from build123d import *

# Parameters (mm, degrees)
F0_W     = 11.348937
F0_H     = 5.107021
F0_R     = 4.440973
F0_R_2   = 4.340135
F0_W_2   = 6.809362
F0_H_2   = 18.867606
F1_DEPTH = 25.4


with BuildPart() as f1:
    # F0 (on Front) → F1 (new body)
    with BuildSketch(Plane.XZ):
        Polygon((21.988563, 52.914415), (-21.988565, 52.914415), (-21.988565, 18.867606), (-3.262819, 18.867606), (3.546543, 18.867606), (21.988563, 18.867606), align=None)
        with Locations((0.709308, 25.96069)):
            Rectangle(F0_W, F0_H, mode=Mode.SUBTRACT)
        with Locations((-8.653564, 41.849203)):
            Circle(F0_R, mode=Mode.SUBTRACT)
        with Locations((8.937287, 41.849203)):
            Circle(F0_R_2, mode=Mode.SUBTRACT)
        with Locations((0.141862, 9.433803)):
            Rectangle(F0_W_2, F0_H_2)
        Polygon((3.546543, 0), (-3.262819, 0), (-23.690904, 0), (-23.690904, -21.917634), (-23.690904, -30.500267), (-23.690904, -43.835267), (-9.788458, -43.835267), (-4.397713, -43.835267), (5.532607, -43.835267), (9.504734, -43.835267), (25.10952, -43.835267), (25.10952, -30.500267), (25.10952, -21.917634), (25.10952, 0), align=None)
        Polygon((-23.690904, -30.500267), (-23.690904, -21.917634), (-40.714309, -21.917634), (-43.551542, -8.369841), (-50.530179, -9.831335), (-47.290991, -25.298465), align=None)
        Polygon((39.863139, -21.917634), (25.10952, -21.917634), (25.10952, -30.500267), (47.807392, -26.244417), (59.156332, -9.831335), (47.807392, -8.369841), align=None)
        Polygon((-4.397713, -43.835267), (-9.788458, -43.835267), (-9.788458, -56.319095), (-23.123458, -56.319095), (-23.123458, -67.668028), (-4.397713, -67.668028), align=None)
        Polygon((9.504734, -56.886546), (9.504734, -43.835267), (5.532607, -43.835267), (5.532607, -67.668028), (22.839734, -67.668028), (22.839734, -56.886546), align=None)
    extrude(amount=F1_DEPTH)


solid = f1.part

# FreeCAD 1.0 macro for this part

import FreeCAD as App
import Part
import Sketcher

V = App.Vector
Q = App.Units.Quantity

doc = App.newDocument("Part")
body = doc.addObject("PartDesign::Body", "Body")

# Sketch on XZ plane
sketch1 = body.newObject("Sketcher::SketchObject", "Sketch")
sketch1.AttachmentSupport = (doc.getObject("XZ_Plane"), [""])
sketch1.MapMode = "FlatFace"
sketch1.addGeometry(Part.LineSegment(V(22, 52.9, 0), V(-22, 52.9, 0)), False)
sketch1.addGeometry(Part.LineSegment(V(-22, 52.9, 0), V(-22, 18.9, 0)), False)
sketch1.addGeometry(Part.LineSegment(V(-22, 18.9, 0), V(-3.3, 18.9, 0)), False)
sketch1.addGeometry(Part.LineSegment(V(-3.3, 18.9, 0), V(-3.3, 0, 0)), False)
sketch1.addGeometry(Part.LineSegment(V(-3.3, 0, 0), V(-23.7, 0, 0)), False)
sketch1.addGeometry(Part.LineSegment(V(-23.7, 0, 0), V(-23.7, -21.9, 0)), False)
sketch1.addGeometry(Part.LineSegment(V(-23.7, -21.9, 0), V(-40.7, -21.9, 0)), False)
sketch1.addGeometry(Part.LineSegment(V(-40.7, -21.9, 0), V(-43.6, -8.4, 0)), False)
sketch1.addGeometry(Part.LineSegment(V(-43.6, -8.4, 0), V(-50.5, -9.8, 0)), False)
sketch1.addGeometry(Part.LineSegment(V(-50.5, -9.8, 0), V(-47.3, -25.3, 0)), False)
sketch1.addGeometry(Part.LineSegment(V(-47.3, -25.3, 0), V(-23.7, -30.5, 0)), False)
sketch1.addGeometry(Part.LineSegment(V(-23.7, -30.5, 0), V(-23.7, -43.8, 0)), False)
sketch1.addGeometry(Part.LineSegment(V(-23.7, -43.8, 0), V(-9.8, -43.8, 0)), False)
sketch1.addGeometry(Part.LineSegment(V(-9.8, -43.8, 0), V(-9.8, -56.3, 0)), False)
sketch1.addGeometry(Part.LineSegment(V(-9.8, -56.3, 0), V(-23.1, -56.3, 0)), False)
sketch1.addGeometry(Part.LineSegment(V(-23.1, -56.3, 0), V(-23.1, -67.7, 0)), False)
sketch1.addGeometry(Part.LineSegment(V(-23.1, -67.7, 0), V(-4.4, -67.7, 0)), False)
sketch1.addGeometry(Part.LineSegment(V(-4.4, -67.7, 0), V(-4.4, -43.8, 0)), False)
sketch1.addGeometry(Part.LineSegment(V(-4.4, -43.8, 0), V(5.5, -43.8, 0)), False)
sketch1.addGeometry(Part.LineSegment(V(5.5, -43.8, 0), V(5.5, -67.7, 0)), False)
sketch1.addGeometry(Part.LineSegment(V(5.5, -67.7, 0), V(22.8, -67.7, 0)), False)
sketch1.addGeometry(Part.LineSegment(V(22.8, -67.7, 0), V(22.8, -56.9, 0)), False)
sketch1.addGeometry(Part.LineSegment(V(22.8, -56.9, 0), V(9.5, -56.9, 0)), False)
sketch1.addGeometry(Part.LineSegment(V(9.5, -56.9, 0), V(9.5, -43.8, 0)), False)
sketch1.addGeometry(Part.LineSegment(V(9.5, -43.8, 0), V(25.1, -43.8, 0)), False)
sketch1.addGeometry(Part.LineSegment(V(25.1, -43.8, 0), V(25.1, -30.5, 0)), False)
sketch1.addGeometry(Part.LineSegment(V(25.1, -30.5, 0), V(47.8, -26.2, 0)), False)
sketch1.addGeometry(Part.LineSegment(V(47.8, -26.2, 0), V(59.2, -9.8, 0)), False)
sketch1.addGeometry(Part.LineSegment(V(59.2, -9.8, 0), V(47.8, -8.4, 0)), False)
sketch1.addGeometry(Part.LineSegment(V(47.8, -8.4, 0), V(39.9, -21.9, 0)), False)
sketch1.addGeometry(Part.LineSegment(V(39.9, -21.9, 0), V(25.1, -21.9, 0)), False)
sketch1.addGeometry(Part.LineSegment(V(25.1, -21.9, 0), V(25.1, 0, 0)), False)
sketch1.addGeometry(Part.LineSegment(V(25.1, 0, 0), V(3.5, 0, 0)), False)
sketch1.addGeometry(Part.LineSegment(V(3.5, 0, 0), V(3.5, 18.9, 0)), False)
sketch1.addGeometry(Part.LineSegment(V(3.5, 18.9, 0), V(22, 18.9, 0)), False)
sketch1.addGeometry(Part.LineSegment(V(22, 18.9, 0), V(22, 52.9, 0)), False)
sketch1.addGeometry(Part.LineSegment(V(6.4, 23.4, 0), V(-5, 23.4, 0)), False)
sketch1.addGeometry(Part.LineSegment(V(-5, 23.4, 0), V(-5, 28.5, 0)), False)
sketch1.addGeometry(Part.LineSegment(V(-5, 28.5, 0), V(6.4, 28.5, 0)), False)
sketch1.addGeometry(Part.LineSegment(V(6.4, 28.5, 0), V(6.4, 23.4, 0)), False)
sketch1.addGeometry(Part.Circle(V(-8.7, 41.8, 0), V(0, 0, 1), 4.4), False)
sketch1.addGeometry(Part.Circle(V(8.9, 41.8, 0), V(0, 0, 1), 4.3), False)
sketch1.addConstraint(Sketcher.Constraint("Coincident", 0, 2, 1, 1))
sketch1.addConstraint(Sketcher.Constraint("Coincident", 1, 2, 2, 1))
sketch1.addConstraint(Sketcher.Constraint("Coincident", 2, 2, 3, 1))
sketch1.addConstraint(Sketcher.Constraint("Coincident", 3, 2, 4, 1))
sketch1.addConstraint(Sketcher.Constraint("Coincident", 4, 2, 5, 1))
sketch1.addConstraint(Sketcher.Constraint("Coincident", 5, 2, 6, 1))
sketch1.addConstraint(Sketcher.Constraint("Coincident", 6, 2, 7, 1))
sketch1.addConstraint(Sketcher.Constraint("Coincident", 7, 2, 8, 1))
sketch1.addConstraint(Sketcher.Constraint("Coincident", 8, 2, 9, 1))
sketch1.addConstraint(Sketcher.Constraint("Coincident", 9, 2, 10, 1))
sketch1.addConstraint(Sketcher.Constraint("Coincident", 10, 2, 11, 1))
sketch1.addConstraint(Sketcher.Constraint("Coincident", 11, 2, 12, 1))
sketch1.addConstraint(Sketcher.Constraint("Coincident", 12, 2, 13, 1))
sketch1.addConstraint(Sketcher.Constraint("Coincident", 13, 2, 14, 1))
sketch1.addConstraint(Sketcher.Constraint("Coincident", 14, 2, 15, 1))
sketch1.addConstraint(Sketcher.Constraint("Coincident", 15, 2, 16, 1))
sketch1.addConstraint(Sketcher.Constraint("Coincident", 16, 2, 17, 1))
sketch1.addConstraint(Sketcher.Constraint("Coincident", 17, 2, 18, 1))
sketch1.addConstraint(Sketcher.Constraint("Coincident", 18, 2, 19, 1))
sketch1.addConstraint(Sketcher.Constraint("Coincident", 19, 2, 20, 1))
sketch1.addConstraint(Sketcher.Constraint("Coincident", 20, 2, 21, 1))
sketch1.addConstraint(Sketcher.Constraint("Coincident", 21, 2, 22, 1))
sketch1.addConstraint(Sketcher.Constraint("Coincident", 22, 2, 23, 1))
sketch1.addConstraint(Sketcher.Constraint("Coincident", 23, 2, 24, 1))
sketch1.addConstraint(Sketcher.Constraint("Coincident", 24, 2, 25, 1))
sketch1.addConstraint(Sketcher.Constraint("Coincident", 25, 2, 26, 1))
sketch1.addConstraint(Sketcher.Constraint("Coincident", 26, 2, 27, 1))
sketch1.addConstraint(Sketcher.Constraint("Coincident", 27, 2, 28, 1))
sketch1.addConstraint(Sketcher.Constraint("Coincident", 28, 2, 29, 1))
sketch1.addConstraint(Sketcher.Constraint("Coincident", 29, 2, 30, 1))
sketch1.addConstraint(Sketcher.Constraint("Coincident", 30, 2, 31, 1))
sketch1.addConstraint(Sketcher.Constraint("Coincident", 31, 2, 32, 1))
sketch1.addConstraint(Sketcher.Constraint("Coincident", 32, 2, 33, 1))
sketch1.addConstraint(Sketcher.Constraint("Coincident", 33, 2, 34, 1))
sketch1.addConstraint(Sketcher.Constraint("Coincident", 34, 2, 35, 1))
sketch1.addConstraint(Sketcher.Constraint("Coincident", 35, 2, 0, 1))
sketch1.addConstraint(Sketcher.Constraint("Coincident", 36, 2, 37, 1))
sketch1.addConstraint(Sketcher.Constraint("Coincident", 37, 2, 38, 1))
sketch1.addConstraint(Sketcher.Constraint("Coincident", 38, 2, 39, 1))
sketch1.addConstraint(Sketcher.Constraint("Coincident", 39, 2, 36, 1))
sketch1.addConstraint(Sketcher.Constraint("Horizontal", 0))
sketch1.addConstraint(Sketcher.Constraint("Vertical", 1))
sketch1.addConstraint(Sketcher.Constraint("Horizontal", 2))
sketch1.addConstraint(Sketcher.Constraint("Vertical", 3))
sketch1.addConstraint(Sketcher.Constraint("Horizontal", 4))
sketch1.addConstraint(Sketcher.Constraint("Vertical", 5))
sketch1.addConstraint(Sketcher.Constraint("Horizontal", 6))
sketch1.addConstraint(Sketcher.Constraint("Vertical", 11))
sketch1.addConstraint(Sketcher.Constraint("Horizontal", 12))
sketch1.addConstraint(Sketcher.Constraint("Vertical", 13))
sketch1.addConstraint(Sketcher.Constraint("Horizontal", 14))
sketch1.addConstraint(Sketcher.Constraint("Vertical", 15))
sketch1.addConstraint(Sketcher.Constraint("Horizontal", 16))
sketch1.addConstraint(Sketcher.Constraint("Vertical", 17))
sketch1.addConstraint(Sketcher.Constraint("Horizontal", 18))
sketch1.addConstraint(Sketcher.Constraint("Vertical", 19))
sketch1.addConstraint(Sketcher.Constraint("Horizontal", 20))
sketch1.addConstraint(Sketcher.Constraint("Vertical", 21))
sketch1.addConstraint(Sketcher.Constraint("Horizontal", 22))
sketch1.addConstraint(Sketcher.Constraint("Vertical", 23))
sketch1.addConstraint(Sketcher.Constraint("Horizontal", 24))
sketch1.addConstraint(Sketcher.Constraint("Vertical", 25))
sketch1.addConstraint(Sketcher.Constraint("Horizontal", 30))
sketch1.addConstraint(Sketcher.Constraint("Vertical", 31))
sketch1.addConstraint(Sketcher.Constraint("Horizontal", 32))
sketch1.addConstraint(Sketcher.Constraint("Vertical", 33))
sketch1.addConstraint(Sketcher.Constraint("Horizontal", 34))
sketch1.addConstraint(Sketcher.Constraint("Vertical", 35))
sketch1.addConstraint(Sketcher.Constraint("Horizontal", 36))
sketch1.addConstraint(Sketcher.Constraint("Vertical", 37))
sketch1.addConstraint(Sketcher.Constraint("Horizontal", 38))
sketch1.addConstraint(Sketcher.Constraint("Vertical", 39))
sketch1.addConstraint(Sketcher.Constraint("Symmetric", 1, 2, 34, 2, -2))
sketch1.addConstraint(Sketcher.Constraint("PointOnObject", 3, 2, -1))
sketch1.addConstraint(Sketcher.Constraint("PointOnObject", 31, 2, -1))
sketch1.addConstraint(Sketcher.Constraint("Perpendicular", 7, 8))
sketch1.addConstraint(Sketcher.Constraint("Perpendicular", 8, 9))
sketch1.addConstraint(Sketcher.Constraint("Horizontal", 40, 3, 41, 3))
sketch1.addConstraint(Sketcher.Constraint("Horizontal", 12, 2, 17, 2))
sketch1.addConstraint(Sketcher.Constraint("Horizontal", 16, 2, 19, 2))
sketch1.addConstraint(Sketcher.Constraint("Horizontal", 18, 2, 23, 2))
sketch1.addConstraint(Sketcher.Constraint("Horizontal", 10, 2, 25, 2))
sketch1.addConstraint(Sketcher.Constraint("Horizontal", 8, 2, 27, 2))
sketch1.addConstraint(Sketcher.Constraint("Horizontal", 7, 2, 28, 2))
sketch1.addConstraint(Sketcher.Constraint("Horizontal", 6, 2, 29, 2))
sketch1.addConstraint(Sketcher.Constraint("Vertical", 5, 2, 10, 2))
sketch1.addConstraint(Sketcher.Constraint("Vertical", 26, 2, 28, 2))
sketch1.addConstraint(Sketcher.Constraint("Vertical", 25, 2, 30, 2))
sketch1.addConstraint(Sketcher.Constraint("Equal", 2, 16))
sketch1.addConstraint(Sketcher.Constraint("Equal", 14, 22))
sketch1.addConstraint(Sketcher.Constraint("Equal", 22, 11))
sketch1.addConstraint(Sketcher.Constraint("DistanceX", 14, 2, 14, 1, Q("0.525 in")))
sketch1.addConstraint(Sketcher.Constraint("Diameter", 41, Q("8.68027 mm")))
sketch1.addConstraint(Sketcher.Constraint("DistanceX", 0, 2, 40, 3, Q("0.525 in")))
sketch1.addConstraint(Sketcher.Constraint("DistanceY", 37, 2, 40, 3, Q("0.5250001 in")))
sketch1.addConstraint(Sketcher.Constraint("Diameter", 40, Q("8.881946 mm")))
sketch1.addConstraint(Sketcher.Constraint("DistanceX", 18, 1, 18, 2, Q("9.93032 mm")))
sketch1.addConstraint(Sketcher.Constraint("DistanceX", 30, 2, 30, 1, Q("14.753619 mm")))
sketch1.addConstraint(Sketcher.Constraint("DistanceX", 34, 1, 34, 2, Q("18.44202 mm")))
sketch1.addConstraint(Sketcher.Constraint("DistanceY", 1, 2, 1, 1, Q("34.046809 mm")))
sketch1.addConstraint(Sketcher.Constraint("DistanceY", 17, 1, 17, 2, Q("23.832761 mm")))
sketch1.addConstraint(Sketcher.Constraint("DistanceY", 23, 1, 23, 2, Q("13.051279 mm")))
sketch1.addConstraint(Sketcher.Constraint("DistanceY", 37, 1, 37, 2, Q("5.107021 mm")))
sketch1.addConstraint(Sketcher.Constraint("DistanceY", -1, 1, 37, 2, Q("28.514201 mm")))
sketch1.addConstraint(Sketcher.Constraint("DistanceY", 6, 2, 8, 2, Q("12.086299 mm")))
sketch1.addConstraint(Sketcher.Constraint("Distance", 8, Q("7.130031 mm")))
sketch1.addConstraint(Sketcher.Constraint("Distance", 26, Q("23.093411 mm")))
sketch1.addConstraint(Sketcher.Constraint("Distance", 27, Q("19.954641 mm")))
sketch1.addConstraint(Sketcher.Constraint("DistanceX", 0, 2, 0, 1, Q("43.977128 mm")))
sketch1.addConstraint(Sketcher.Constraint("DistanceX", 2, 1, 2, 2, Q("18.725746 mm")))
sketch1.addConstraint(Sketcher.Constraint("DistanceX", 4, 2, 4, 1, Q("20.428085 mm")))
sketch1.addConstraint(Sketcher.Constraint("DistanceX", 6, 2, 6, 1, Q("17.023405 mm")))
sketch1.addConstraint(Sketcher.Constraint("DistanceX", 12, 1, 12, 2, Q("13.902446 mm")))
sketch1.addConstraint(Sketcher.Constraint("DistanceX", 20, 1, 20, 2, Q("17.307127 mm")))
sketch1.addConstraint(Sketcher.Constraint("DistanceX", 24, 1, 24, 2, Q("15.604786 mm")))
sketch1.addConstraint(Sketcher.Constraint("DistanceX", 36, 2, 36, 1, Q("11.348937 mm")))
sketch1.addConstraint(Sketcher.Constraint("DistanceY", 3, 2, 3, 1, Q("18.867606 mm")))
sketch1.addConstraint(Sketcher.Constraint("DistanceY", 5, 2, 5, 1, Q("21.917634 mm")))
sketch1.addConstraint(Sketcher.Constraint("DistanceY", 13, 2, 13, 1, Q("12.483828 mm")))
sketch1.addConstraint(Sketcher.Constraint("DistanceX", 7, 2, -1, 1, Q("43.551542 mm")))
sketch1.addConstraint(Sketcher.Constraint("DistanceX", 9, 2, -1, 1, Q("47.290991 mm")))
sketch1.addConstraint(Sketcher.Constraint("DistanceY", 15, 2, -1, 1, Q("67.668028 mm")))
sketch1.addConstraint(Sketcher.Constraint("DistanceX", 36, 2, -1, 1, Q("4.96516 mm")))
sketch1.addConstraint(Sketcher.Constraint("DistanceX", 40, 3, 41, 3, Q("17.590851 mm")))
sketch1.addConstraint(Sketcher.Constraint("DistanceX", 25, 2, 26, 2, Q("22.697872 mm")))
pad1 = body.newObject("PartDesign::Pad", "Pad")
pad1.Profile = sketch1
pad1.Length = Q("1 in")

doc.recompute()
